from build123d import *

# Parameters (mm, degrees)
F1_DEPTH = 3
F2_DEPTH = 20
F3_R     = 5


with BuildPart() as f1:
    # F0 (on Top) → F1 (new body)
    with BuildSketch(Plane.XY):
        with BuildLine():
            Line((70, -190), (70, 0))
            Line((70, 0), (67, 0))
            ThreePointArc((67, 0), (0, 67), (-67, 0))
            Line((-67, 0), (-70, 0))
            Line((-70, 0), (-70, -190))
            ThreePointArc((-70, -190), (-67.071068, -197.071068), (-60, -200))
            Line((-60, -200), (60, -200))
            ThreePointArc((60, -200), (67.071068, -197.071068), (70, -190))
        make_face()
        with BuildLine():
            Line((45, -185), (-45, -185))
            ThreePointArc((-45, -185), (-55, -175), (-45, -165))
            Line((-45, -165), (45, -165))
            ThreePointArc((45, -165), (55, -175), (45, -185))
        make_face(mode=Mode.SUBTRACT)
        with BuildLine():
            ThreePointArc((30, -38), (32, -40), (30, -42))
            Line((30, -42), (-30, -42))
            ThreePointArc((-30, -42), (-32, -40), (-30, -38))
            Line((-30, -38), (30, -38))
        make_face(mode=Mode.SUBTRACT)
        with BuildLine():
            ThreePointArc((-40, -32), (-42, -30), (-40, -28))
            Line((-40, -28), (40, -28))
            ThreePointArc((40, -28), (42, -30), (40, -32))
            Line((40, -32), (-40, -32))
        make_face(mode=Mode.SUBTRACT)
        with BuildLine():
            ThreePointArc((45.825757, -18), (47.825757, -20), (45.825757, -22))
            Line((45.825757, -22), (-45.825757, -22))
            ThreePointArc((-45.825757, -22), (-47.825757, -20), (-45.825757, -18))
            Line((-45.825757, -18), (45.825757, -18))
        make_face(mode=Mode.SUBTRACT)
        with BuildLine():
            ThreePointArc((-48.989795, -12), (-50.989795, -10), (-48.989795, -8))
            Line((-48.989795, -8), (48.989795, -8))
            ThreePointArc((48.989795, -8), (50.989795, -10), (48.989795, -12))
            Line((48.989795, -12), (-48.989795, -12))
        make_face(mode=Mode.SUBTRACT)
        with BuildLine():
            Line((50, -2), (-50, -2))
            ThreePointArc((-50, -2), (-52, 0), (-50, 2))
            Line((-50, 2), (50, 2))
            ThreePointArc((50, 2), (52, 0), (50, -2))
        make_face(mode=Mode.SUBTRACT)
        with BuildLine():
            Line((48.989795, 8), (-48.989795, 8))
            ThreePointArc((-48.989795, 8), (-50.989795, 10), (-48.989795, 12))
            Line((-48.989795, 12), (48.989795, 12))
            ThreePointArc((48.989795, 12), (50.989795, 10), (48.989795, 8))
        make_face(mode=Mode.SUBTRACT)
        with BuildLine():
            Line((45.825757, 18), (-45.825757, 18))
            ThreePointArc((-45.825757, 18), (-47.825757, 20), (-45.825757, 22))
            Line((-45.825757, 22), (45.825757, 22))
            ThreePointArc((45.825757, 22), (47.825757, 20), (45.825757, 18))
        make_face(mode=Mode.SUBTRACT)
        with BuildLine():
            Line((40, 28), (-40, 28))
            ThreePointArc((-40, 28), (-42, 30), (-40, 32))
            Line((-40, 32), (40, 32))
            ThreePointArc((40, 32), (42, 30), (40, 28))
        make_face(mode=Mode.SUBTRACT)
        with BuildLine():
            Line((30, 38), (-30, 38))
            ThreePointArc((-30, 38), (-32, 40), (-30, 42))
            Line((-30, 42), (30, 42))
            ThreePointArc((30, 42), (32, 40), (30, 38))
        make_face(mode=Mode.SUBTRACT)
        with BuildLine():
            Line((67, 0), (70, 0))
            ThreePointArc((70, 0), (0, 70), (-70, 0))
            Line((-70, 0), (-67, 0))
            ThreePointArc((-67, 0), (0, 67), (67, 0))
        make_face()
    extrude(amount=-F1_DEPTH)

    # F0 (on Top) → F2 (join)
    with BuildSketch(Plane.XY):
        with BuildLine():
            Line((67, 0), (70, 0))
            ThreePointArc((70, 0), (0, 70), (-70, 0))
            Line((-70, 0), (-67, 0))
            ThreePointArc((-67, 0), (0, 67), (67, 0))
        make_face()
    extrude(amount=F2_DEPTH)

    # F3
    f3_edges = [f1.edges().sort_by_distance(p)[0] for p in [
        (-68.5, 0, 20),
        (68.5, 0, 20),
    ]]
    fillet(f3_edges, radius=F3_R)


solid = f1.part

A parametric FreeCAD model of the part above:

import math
import FreeCAD as App
import Part
import Sketcher
Q = App.Units.Quantity


def edges_at(feature, points):
    """Names of the edges that pass closest to the given points."""
    edges = feature.Shape.Edges
    near = lambda p: min(range(len(edges)), key=lambda i: edges[i].distToShape(Part.Vertex(*p))[0])
    return sorted({f"Edge{near(p) + 1}" for p in points})

doc = App.newDocument("Part")
body = doc.addObject("PartDesign::Body", "Body")

# Sketch on XY plane
sketch1 = doc.addObject("Sketcher::SketchObject", "Sketch")
body.addObject(sketch1)
sketch1.AttachmentSupport = (doc.XY_Plane, [""])
sketch1.MapMode = "FlatFace"
sketch1.addGeometry([
    Part.LineSegment(App.Vector(70, -190, 0), App.Vector(70, 0, 0)),  # 0
    Part.ArcOfCircle(Part.Circle(App.Vector(0, 0, 0), App.Vector(0, 0, 1), 70), math.radians(0), math.radians(180)),  # 1
    Part.LineSegment(App.Vector(-70, 0, 0), App.Vector(-70, -190, 0)),  # 2
    Part.ArcOfCircle(Part.Circle(App.Vector(-60, -190, 0), App.Vector(0, 0, 1), 10), math.radians(180), math.radians(270)),  # 3
    Part.LineSegment(App.Vector(-60, -200, 0), App.Vector(60, -200, 0)),  # 4
    Part.ArcOfCircle(Part.Circle(App.Vector(60, -190, 0), App.Vector(0, 0, 1), 10), math.radians(-90), math.radians(0)),  # 5
    Part.ArcOfCircle(Part.Circle(App.Vector(45, -175, 0), App.Vector(0, 0, 1), 10), math.radians(-90), math.radians(90)),  # 6
    Part.LineSegment(App.Vector(45, -185, 0), App.Vector(-45, -185, 0)),  # 7
    Part.ArcOfCircle(Part.Circle(App.Vector(-45, -175, 0), App.Vector(0, 0, 1), 10), math.radians(90), math.radians(270)),  # 8
    Part.LineSegment(App.Vector(-45, -165, 0), App.Vector(45, -165, 0)),  # 9
    Part.LineSegment(App.Vector(-30, -38, 0), App.Vector(30, -38, 0)),  # 10
    Part.ArcOfCircle(Part.Circle(App.Vector(30, -40, 0), App.Vector(0, 0, 1), 2), math.radians(-90), math.radians(90)),  # 11
    Part.LineSegment(App.Vector(30, -42, 0), App.Vector(-30, -42, 0)),  # 12
    Part.ArcOfCircle(Part.Circle(App.Vector(-30, -40, 0), App.Vector(0, 0, 1), 2), math.radians(90), math.radians(270)),  # 13
    Part.LineSegment(App.Vector(40, -32, 0), App.Vector(-40, -32, 0)),  # 14
    Part.ArcOfCircle(Part.Circle(App.Vector(-40, -30, 0), App.Vector(0, 0, 1), 2), math.radians(90), math.radians(270)),  # 15
    Part.LineSegment(App.Vector(-40, -28, 0), App.Vector(40, -28, 0)),  # 16
    Part.ArcOfCircle(Part.Circle(App.Vector(40, -30, 0), App.Vector(0, 0, 1), 2), math.radians(-90), math.radians(90)),  # 17
    Part.LineSegment(App.Vector(-45.8, -18, 0), App.Vector(45.8, -18, 0)),  # 18
    Part.ArcOfCircle(Part.Circle(App.Vector(45.8, -20, 0), App.Vector(0, 0, 1), 2), math.radians(-90), math.radians(90)),  # 19
    Part.LineSegment(App.Vector(45.8, -22, 0), App.Vector(-45.8, -22, 0)),  # 20
    Part.ArcOfCircle(Part.Circle(App.Vector(-45.8, -20, 0), App.Vector(0, 0, 1), 2), math.radians(90), math.radians(270)),  # 21
    Part.LineSegment(App.Vector(49, -12, 0), App.Vector(-49, -12, 0)),  # 22
    Part.ArcOfCircle(Part.Circle(App.Vector(-49, -10, 0), App.Vector(0, 0, 1), 2), math.radians(90), math.radians(270)),  # 23
    Part.LineSegment(App.Vector(-49, -8, 0), App.Vector(49, -8, 0)),  # 24
    Part.ArcOfCircle(Part.Circle(App.Vector(49, -10, 0), App.Vector(0, 0, 1), 2), math.radians(-90), math.radians(90)),  # 25
    Part.ArcOfCircle(Part.Circle(App.Vector(50, 0, 0), App.Vector(0, 0, 1), 2), math.radians(-90), math.radians(90)),  # 26
    Part.LineSegment(App.Vector(50, -2, 0), App.Vector(-50, -2, 0)),  # 27
    Part.ArcOfCircle(Part.Circle(App.Vector(-50, 0, 0), App.Vector(0, 0, 1), 2), math.radians(90), math.radians(270)),  # 28
    Part.LineSegment(App.Vector(-50, 2, 0), App.Vector(50, 2, 0)),  # 29
    Part.ArcOfCircle(Part.Circle(App.Vector(49, 10, 0), App.Vector(0, 0, 1), 2), math.radians(-90), math.radians(90)),  # 30
    Part.LineSegment(App.Vector(49, 8, 0), App.Vector(-49, 8, 0)),  # 31
    Part.ArcOfCircle(Part.Circle(App.Vector(-49, 10, 0), App.Vector(0, 0, 1), 2), math.radians(90), math.radians(270)),  # 32
    Part.LineSegment(App.Vector(-49, 12, 0), App.Vector(49, 12, 0)),  # 33
    Part.ArcOfCircle(Part.Circle(App.Vector(45.8, 20, 0), App.Vector(0, 0, 1), 2), math.radians(-90), math.radians(90)),  # 34
    Part.LineSegment(App.Vector(45.8, 18, 0), App.Vector(-45.8, 18, 0)),  # 35
    Part.ArcOfCircle(Part.Circle(App.Vector(-45.8, 20, 0), App.Vector(0, 0, 1), 2), math.radians(90), math.radians(270)),  # 36
    Part.LineSegment(App.Vector(-45.8, 22, 0), App.Vector(45.8, 22, 0)),  # 37
    Part.ArcOfCircle(Part.Circle(App.Vector(40, 30, 0), App.Vector(0, 0, 1), 2), math.radians(-90), math.radians(90)),  # 38
    Part.LineSegment(App.Vector(40, 28, 0), App.Vector(-40, 28, 0)),  # 39
    Part.ArcOfCircle(Part.Circle(App.Vector(-40, 30, 0), App.Vector(0, 0, 1), 2), math.radians(90), math.radians(270)),  # 40
    Part.LineSegment(App.Vector(-40, 32, 0), App.Vector(40, 32, 0)),  # 41
    Part.ArcOfCircle(Part.Circle(App.Vector(30, 40, 0), App.Vector(0, 0, 1), 2), math.radians(-90), math.radians(90)),  # 42
    Part.LineSegment(App.Vector(30, 38, 0), App.Vector(-30, 38, 0)),  # 43
    Part.ArcOfCircle(Part.Circle(App.Vector(-30, 40, 0), App.Vector(0, 0, 1), 2), math.radians(90), math.radians(270)),  # 44
    Part.LineSegment(App.Vector(-30, 42, 0), App.Vector(30, 42, 0)),  # 45
], False)
sketch1.addConstraint([
    Sketcher.Constraint("Tangent", 0, 2, 1, 1),
    Sketcher.Constraint("Tangent", 1, 2, 2, 1),
    Sketcher.Constraint("Tangent", 2, 2, 3, 1),
    Sketcher.Constraint("Tangent", 3, 2, 4, 1),
    Sketcher.Constraint("Tangent", 4, 2, 5, 1),
    Sketcher.Constraint("Tangent", 5, 2, 0, 1),
    Sketcher.Constraint("Tangent", 6, 1, 7, 1),
    Sketcher.Constraint("Tangent", 7, 2, 8, 2),
    Sketcher.Constraint("Tangent", 8, 1, 9, 1),
    Sketcher.Constraint("Tangent", 9, 2, 6, 2),
    Sketcher.Constraint("Tangent", 10, 2, 11, 2),
    Sketcher.Constraint("Tangent", 11, 1, 12, 1),
    Sketcher.Constraint("Tangent", 12, 2, 13, 2),
    Sketcher.Constraint("Tangent", 13, 1, 10, 1),
    Sketcher.Constraint("Tangent", 14, 2, 15, 2),
    Sketcher.Constraint("Tangent", 15, 1, 16, 1),
    Sketcher.Constraint("Tangent", 16, 2, 17, 2),
    Sketcher.Constraint("Tangent", 17, 1, 14, 1),
    Sketcher.Constraint("Tangent", 18, 2, 19, 2),
    Sketcher.Constraint("Tangent", 19, 1, 20, 1),
    Sketcher.Constraint("Tangent", 20, 2, 21, 2),
    Sketcher.Constraint("Tangent", 21, 1, 18, 1),
    Sketcher.Constraint("Tangent", 22, 2, 23, 2),
    Sketcher.Constraint("Tangent", 23, 1, 24, 1),
    Sketcher.Constraint("Tangent", 24, 2, 25, 2),
    Sketcher.Constraint("Tangent", 25, 1, 22, 1),
    Sketcher.Constraint("Tangent", 26, 1, 27, 1),
    Sketcher.Constraint("Tangent", 27, 2, 28, 2),
    Sketcher.Constraint("Tangent", 28, 1, 29, 1),
    Sketcher.Constraint("Tangent", 29, 2, 26, 2),
    Sketcher.Constraint("Tangent", 30, 1, 31, 1),
    Sketcher.Constraint("Tangent", 31, 2, 32, 2),
    Sketcher.Constraint("Tangent", 32, 1, 33, 1),
    Sketcher.Constraint("Tangent", 33, 2, 30, 2),
    Sketcher.Constraint("Tangent", 34, 1, 35, 1),
    Sketcher.Constraint("Tangent", 35, 2, 36, 2),
    Sketcher.Constraint("Tangent", 36, 1, 37, 1),
    Sketcher.Constraint("Tangent", 37, 2, 34, 2),
    Sketcher.Constraint("Tangent", 38, 1, 39, 1),
    Sketcher.Constraint("Tangent", 39, 2, 40, 2),
    Sketcher.Constraint("Tangent", 40, 1, 41, 1),
    Sketcher.Constraint("Tangent", 41, 2, 38, 2),
    Sketcher.Constraint("Tangent", 42, 1, 43, 1),
    Sketcher.Constraint("Tangent", 43, 2, 44, 2),
    Sketcher.Constraint("Tangent", 44, 1, 45, 1),
    Sketcher.Constraint("Tangent", 45, 2, 42, 2),
    Sketcher.Constraint("Vertical", 0),
    Sketcher.Constraint("Vertical", 2),
    Sketcher.Constraint("Horizontal", 4),
    Sketcher.Constraint("Horizontal", 7),
    Sketcher.Constraint("Horizontal", 9),
    Sketcher.Constraint("Horizontal", 10),
    Sketcher.Constraint("Horizontal", 12),
    Sketcher.Constraint("Horizontal", 14),
    Sketcher.Constraint("Horizontal", 16),
    Sketcher.Constraint("Horizontal", 18),
    Sketcher.Constraint("Horizontal", 20),
    Sketcher.Constraint("Horizontal", 22),
    Sketcher.Constraint("Horizontal", 24),
    Sketcher.Constraint("Horizontal", 27),
    Sketcher.Constraint("Horizontal", 29),
    Sketcher.Constraint("Horizontal", 31),
    Sketcher.Constraint("Horizontal", 33),
    Sketcher.Constraint("Horizontal", 35),
    Sketcher.Constraint("Horizontal", 37),
    Sketcher.Constraint("Horizontal", 39),
    Sketcher.Constraint("Horizontal", 41),
    Sketcher.Constraint("Horizontal", 43),
    Sketcher.Constraint("Horizontal", 45),
    Sketcher.Constraint("Coincident", 1, 3, -1, 1),
    Sketcher.Constraint("Equal", 3, 5),
    Sketcher.Constraint("Equal", 5, 6),
    Sketcher.Constraint("Equal", 13, 15),
    Sketcher.Constraint("Equal", 17, 19),
    Sketcher.Constraint("Equal", 21, 23),
    Sketcher.Constraint("Equal", 25, 26),
    Sketcher.Constraint("Equal", 28, 30),
    Sketcher.Constraint("Equal", 32, 34),
    Sketcher.Constraint("Equal", 36, 38),
    Sketcher.Constraint("Equal", 40, 42),
    Sketcher.Constraint("Symmetric", 26, 3, 28, 3, -1, 1),
    Sketcher.Constraint("Symmetric", 23, 3, 30, 3, -1, 1),
    Sketcher.Constraint("Symmetric", 21, 3, 34, 3, -1, 1),
    Sketcher.Constraint("Symmetric", 15, 3, 38, 3, -1, 1),
    Sketcher.Constraint("Symmetric", 13, 3, 42, 3, -1, 1),
    Sketcher.Constraint("Vertical", 25, 3, 30, 3),
    Sketcher.Constraint("Vertical", 23, 3, 32, 3),
    Sketcher.Constraint("Vertical", 19, 3, 34, 3),
    Sketcher.Constraint("Vertical", 21, 3, 36, 3),
    Sketcher.Constraint("Vertical", 17, 3, 38, 3),
    Sketcher.Constraint("Vertical", 15, 3, 40, 3),
    Sketcher.Constraint("Vertical", 11, 3, 42, 3),
    Sketcher.Constraint("Vertical", 13, 3, 44, 3),
    Sketcher.Constraint("Radius", 1, Q("70 mm")),
    Sketcher.Constraint("Radius", 3, Q("9.999999 mm")),
    Sketcher.Constraint("Radius", 11, Q("2 mm")),
    Sketcher.Constraint("DistanceX", 7, 2, 7, 1, Q("90 mm")),
    Sketcher.Constraint("DistanceX", 10, 1, 10, 2, Q("60 mm")),
    Sketcher.Constraint("DistanceX", 14, 2, 14, 1, Q("80 mm")),
    Sketcher.Constraint("DistanceX", 27, 2, 27, 1, Q("100 mm")),
    Sketcher.Constraint("DistanceY", 0, 1, 0, 2, Q("190 mm")),
    Sketcher.Constraint("DistanceX", -1, 1, 6, 3, Q("45 mm")),
    Sketcher.Constraint("DistanceY", 6, 3, -1, 1, Q("175 mm")),
    Sketcher.Constraint("DistanceY", 11, 3, -1, 1, Q("40 mm")),
    Sketcher.Constraint("DistanceY", 15, 3, -1, 1, Q("30 mm")),
    Sketcher.Constraint("DistanceY", 19, 3, -1, 1, Q("20 mm")),
    Sketcher.Constraint("DistanceY", 23, 3, -1, 1, Q("10 mm")),
    Sketcher.Constraint("DistanceX", 22, 2, 22, 1, Q("97.97959 mm")),
    Sketcher.Constraint("DistanceX", 18, 1, 18, 2, Q("91.651514 mm")),
])
pad1 = doc.addObject("PartDesign::Pad", "Pad")
body.addObject(pad1)
pad1.Profile = sketch1
pad1.Length = 3
pad1.Reversed = True

# Sketch on XY plane
sketch2 = doc.addObject("Sketcher::SketchObject", "Sketch001")
body.addObject(sketch2)
sketch2.AttachmentSupport = (doc.XY_Plane, [""])
sketch2.MapMode = "FlatFace"
sketch2.addGeometry([
    Part.LineSegment(App.Vector(67, 0, 0), App.Vector(70, 0, 0)),
    Part.ArcOfCircle(Part.Circle(App.Vector(0, 0, 0), App.Vector(0, 0, 1), 70), math.radians(0), math.radians(180)),
    Part.LineSegment(App.Vector(-70, 0, 0), App.Vector(-67, 0, 0)),
    Part.ArcOfCircle(Part.Circle(App.Vector(0, 0, 0), App.Vector(0, 0, 1), 67), math.radians(0), math.radians(180)),
], False)
sketch2.addConstraint([
    Sketcher.Constraint("Coincident", 0, 2, 1, 1),
    Sketcher.Constraint("Coincident", 1, 2, 2, 1),
    Sketcher.Constraint("Coincident", 2, 2, 3, 2),
    Sketcher.Constraint("Coincident", 3, 1, 0, 1),
    Sketcher.Constraint("Horizontal", 0),
    Sketcher.Constraint("Horizontal", 2),
    Sketcher.Constraint("Coincident", 1, 3, -1, 1),
    Sketcher.Constraint("Coincident", 3, 3, -1, 1),
    Sketcher.Constraint("PointOnObject", 0, 2, -1),
    Sketcher.Constraint("PointOnObject", 1, 2, -1),
    Sketcher.Constraint("Radius", 1, Q("70 mm")),
    Sketcher.Constraint("Radius", 3, Q("67 mm")),
])
pad2 = doc.addObject("PartDesign::Pad", "Pad001")
body.addObject(pad2)
pad2.Profile = sketch2
pad2.Length = 20
doc.recompute()

fillet = doc.addObject("PartDesign::Fillet", "Fillet")
body.addObject(fillet)
fillet.Base = (pad2, edges_at(pad2, [(-68.5, 0, 20), (68.5, 0, 20)]))
fillet.Radius = 5

doc.recompute()
